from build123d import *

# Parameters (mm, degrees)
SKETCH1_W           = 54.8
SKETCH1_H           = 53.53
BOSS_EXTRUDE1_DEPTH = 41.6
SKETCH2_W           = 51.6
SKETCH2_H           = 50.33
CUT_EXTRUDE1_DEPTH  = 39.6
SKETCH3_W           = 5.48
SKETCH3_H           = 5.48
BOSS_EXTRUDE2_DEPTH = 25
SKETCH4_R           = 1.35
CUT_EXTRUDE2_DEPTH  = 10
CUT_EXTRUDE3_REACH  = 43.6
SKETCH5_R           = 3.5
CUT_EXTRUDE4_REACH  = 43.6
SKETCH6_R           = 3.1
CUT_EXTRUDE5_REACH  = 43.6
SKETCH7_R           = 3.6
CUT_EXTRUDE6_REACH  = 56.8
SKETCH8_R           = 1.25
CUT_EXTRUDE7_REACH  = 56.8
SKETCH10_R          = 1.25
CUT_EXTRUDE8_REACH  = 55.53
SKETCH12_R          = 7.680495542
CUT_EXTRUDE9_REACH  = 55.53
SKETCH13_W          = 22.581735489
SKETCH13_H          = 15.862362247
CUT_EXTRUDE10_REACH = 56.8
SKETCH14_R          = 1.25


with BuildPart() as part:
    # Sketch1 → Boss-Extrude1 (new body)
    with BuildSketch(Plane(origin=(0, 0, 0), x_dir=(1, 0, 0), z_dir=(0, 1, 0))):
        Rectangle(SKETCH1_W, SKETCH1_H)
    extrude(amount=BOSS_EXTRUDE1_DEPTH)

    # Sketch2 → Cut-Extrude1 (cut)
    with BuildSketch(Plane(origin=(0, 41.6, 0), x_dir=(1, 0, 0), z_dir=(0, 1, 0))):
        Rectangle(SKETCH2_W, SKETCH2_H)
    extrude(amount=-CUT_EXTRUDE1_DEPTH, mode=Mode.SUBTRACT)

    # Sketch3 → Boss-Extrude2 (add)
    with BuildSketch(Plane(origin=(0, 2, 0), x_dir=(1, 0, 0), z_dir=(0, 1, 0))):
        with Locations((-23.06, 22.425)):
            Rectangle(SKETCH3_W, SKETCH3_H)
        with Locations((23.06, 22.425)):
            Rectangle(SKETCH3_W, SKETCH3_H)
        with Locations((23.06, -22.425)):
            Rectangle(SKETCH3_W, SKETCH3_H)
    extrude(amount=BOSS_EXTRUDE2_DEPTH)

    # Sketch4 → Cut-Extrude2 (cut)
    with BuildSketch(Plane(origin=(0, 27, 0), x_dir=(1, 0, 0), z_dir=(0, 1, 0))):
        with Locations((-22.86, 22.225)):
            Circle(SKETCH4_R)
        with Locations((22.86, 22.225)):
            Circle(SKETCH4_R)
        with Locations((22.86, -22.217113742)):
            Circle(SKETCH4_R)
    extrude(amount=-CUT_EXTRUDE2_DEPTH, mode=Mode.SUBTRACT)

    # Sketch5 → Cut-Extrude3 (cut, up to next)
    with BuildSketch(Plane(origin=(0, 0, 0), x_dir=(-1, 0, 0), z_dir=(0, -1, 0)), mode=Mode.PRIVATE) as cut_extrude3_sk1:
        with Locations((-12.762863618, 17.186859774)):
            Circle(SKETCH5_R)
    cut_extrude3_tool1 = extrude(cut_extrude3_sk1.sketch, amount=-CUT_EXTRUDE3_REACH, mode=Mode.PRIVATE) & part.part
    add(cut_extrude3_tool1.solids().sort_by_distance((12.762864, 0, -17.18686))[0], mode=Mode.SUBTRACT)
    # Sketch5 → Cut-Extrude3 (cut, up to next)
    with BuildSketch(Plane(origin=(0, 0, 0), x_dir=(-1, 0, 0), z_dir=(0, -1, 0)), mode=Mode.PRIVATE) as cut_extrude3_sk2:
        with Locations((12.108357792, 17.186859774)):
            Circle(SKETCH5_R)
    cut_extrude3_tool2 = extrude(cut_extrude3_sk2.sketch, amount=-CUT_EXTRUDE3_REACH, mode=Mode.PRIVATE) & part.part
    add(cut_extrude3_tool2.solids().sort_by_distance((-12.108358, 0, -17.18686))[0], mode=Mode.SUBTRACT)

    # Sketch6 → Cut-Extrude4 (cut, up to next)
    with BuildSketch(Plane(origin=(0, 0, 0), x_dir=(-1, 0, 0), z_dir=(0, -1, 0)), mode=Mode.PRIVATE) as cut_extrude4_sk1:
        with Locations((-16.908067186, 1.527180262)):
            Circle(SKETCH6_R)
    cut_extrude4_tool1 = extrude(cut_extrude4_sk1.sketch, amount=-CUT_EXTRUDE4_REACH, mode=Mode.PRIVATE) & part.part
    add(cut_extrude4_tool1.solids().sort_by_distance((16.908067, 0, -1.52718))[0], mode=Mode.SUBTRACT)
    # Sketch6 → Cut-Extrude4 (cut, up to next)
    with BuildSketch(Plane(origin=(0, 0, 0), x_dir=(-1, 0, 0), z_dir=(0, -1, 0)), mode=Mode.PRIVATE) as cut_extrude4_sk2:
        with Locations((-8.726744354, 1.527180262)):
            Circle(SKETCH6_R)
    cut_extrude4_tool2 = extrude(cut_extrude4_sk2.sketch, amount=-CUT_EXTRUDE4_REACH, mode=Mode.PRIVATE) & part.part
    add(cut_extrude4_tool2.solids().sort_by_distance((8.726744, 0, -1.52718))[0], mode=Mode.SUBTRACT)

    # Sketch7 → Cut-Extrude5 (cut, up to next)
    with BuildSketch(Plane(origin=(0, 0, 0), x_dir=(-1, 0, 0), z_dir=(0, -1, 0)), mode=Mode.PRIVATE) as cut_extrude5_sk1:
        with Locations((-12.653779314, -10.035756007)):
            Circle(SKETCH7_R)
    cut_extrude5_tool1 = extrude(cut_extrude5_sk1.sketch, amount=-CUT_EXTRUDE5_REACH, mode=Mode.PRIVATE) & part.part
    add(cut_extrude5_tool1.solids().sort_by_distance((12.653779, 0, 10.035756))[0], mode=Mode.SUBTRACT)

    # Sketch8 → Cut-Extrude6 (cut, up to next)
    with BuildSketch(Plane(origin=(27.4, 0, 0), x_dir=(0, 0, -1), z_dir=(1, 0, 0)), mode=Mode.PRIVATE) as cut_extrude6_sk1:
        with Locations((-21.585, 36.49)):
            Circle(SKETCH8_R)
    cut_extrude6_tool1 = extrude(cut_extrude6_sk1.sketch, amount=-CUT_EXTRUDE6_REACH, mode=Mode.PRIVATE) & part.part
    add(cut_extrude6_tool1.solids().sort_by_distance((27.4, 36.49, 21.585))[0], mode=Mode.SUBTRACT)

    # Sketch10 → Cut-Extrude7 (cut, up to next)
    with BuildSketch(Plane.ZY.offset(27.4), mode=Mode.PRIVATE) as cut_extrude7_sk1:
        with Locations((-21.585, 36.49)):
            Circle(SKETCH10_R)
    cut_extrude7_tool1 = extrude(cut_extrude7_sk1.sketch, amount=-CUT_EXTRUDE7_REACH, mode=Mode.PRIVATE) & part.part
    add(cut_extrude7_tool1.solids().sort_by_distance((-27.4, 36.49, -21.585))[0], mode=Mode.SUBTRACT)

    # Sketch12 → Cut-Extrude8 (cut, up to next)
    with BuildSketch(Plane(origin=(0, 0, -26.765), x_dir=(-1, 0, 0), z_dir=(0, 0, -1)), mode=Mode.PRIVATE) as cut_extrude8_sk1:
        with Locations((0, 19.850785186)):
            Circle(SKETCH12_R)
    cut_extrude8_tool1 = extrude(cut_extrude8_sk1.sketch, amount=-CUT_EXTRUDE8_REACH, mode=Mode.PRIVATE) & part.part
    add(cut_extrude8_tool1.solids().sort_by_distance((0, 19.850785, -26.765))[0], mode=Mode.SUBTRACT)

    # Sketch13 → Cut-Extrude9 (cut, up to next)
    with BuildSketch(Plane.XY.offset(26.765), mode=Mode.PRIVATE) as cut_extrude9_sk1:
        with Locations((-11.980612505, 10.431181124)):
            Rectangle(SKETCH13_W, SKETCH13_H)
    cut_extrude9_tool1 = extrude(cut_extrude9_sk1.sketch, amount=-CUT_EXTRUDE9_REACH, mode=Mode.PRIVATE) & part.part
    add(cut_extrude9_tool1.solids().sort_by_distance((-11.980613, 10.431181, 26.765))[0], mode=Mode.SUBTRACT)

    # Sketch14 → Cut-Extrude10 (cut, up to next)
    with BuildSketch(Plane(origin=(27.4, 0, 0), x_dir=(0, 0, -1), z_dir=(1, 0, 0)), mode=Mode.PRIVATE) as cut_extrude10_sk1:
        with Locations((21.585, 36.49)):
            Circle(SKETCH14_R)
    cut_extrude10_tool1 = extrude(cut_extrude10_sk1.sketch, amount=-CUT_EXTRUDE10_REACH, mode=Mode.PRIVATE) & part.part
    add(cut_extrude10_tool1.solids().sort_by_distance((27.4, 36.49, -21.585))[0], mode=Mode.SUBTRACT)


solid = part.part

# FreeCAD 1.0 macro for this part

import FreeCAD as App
import Part
import Sketcher
from FreeCAD import Vector
Q = App.Units.Quantity

doc = App.newDocument("Part")
body = doc.addObject("PartDesign::Body", "Body")

# Sketch on XZ plane
sketch1 = doc.addObject("Sketcher::SketchObject", "Sketch")
body.addObject(sketch1)
sketch1.AttachmentSupport = (doc.XZ_Plane, [""])
sketch1.MapMode = "FlatFace"
sketch1.addGeometry(Part.LineSegment(Vector(-27, -27, 0), Vector(-27, 27, 0)), False)
sketch1.addGeometry(Part.LineSegment(Vector(-27, 27, 0), Vector(27, 27, 0)), False)
sketch1.addGeometry(Part.LineSegment(Vector(27, 27, 0), Vector(27, -27, 0)), False)
sketch1.addGeometry(Part.LineSegment(Vector(27, -27, 0), Vector(-27, -27, 0)), False)
sketch1.addConstraint(Sketcher.Constraint("Coincident", 0, 2, 1, 1))
sketch1.addConstraint(Sketcher.Constraint("Coincident", 1, 2, 2, 1))
sketch1.addConstraint(Sketcher.Constraint("Coincident", 2, 2, 3, 1))
sketch1.addConstraint(Sketcher.Constraint("Coincident", 3, 2, 0, 1))
sketch1.addConstraint(Sketcher.Constraint("Vertical", 0))
sketch1.addConstraint(Sketcher.Constraint("Horizontal", 1))
sketch1.addConstraint(Sketcher.Constraint("Vertical", 2))
sketch1.addConstraint(Sketcher.Constraint("Horizontal", 3))
sketch1.addConstraint(Sketcher.Constraint("Symmetric", 0, 2, 2, 2, -1, 1))
sketch1.addConstraint(Sketcher.Constraint("DistanceX", 1, 1, 1, 2, Q("54.8 mm")))
sketch1.addConstraint(Sketcher.Constraint("DistanceY", 0, 1, 0, 2, Q("53.53 mm")))
pad1 = doc.addObject("PartDesign::Pad", "Pad")
body.addObject(pad1)
pad1.Profile = sketch1
pad1.Length = 41.6
pad1.Reversed = True

# Sketch on XZ plane
sketch2 = doc.addObject("Sketcher::SketchObject", "Sketch001")
body.addObject(sketch2)
sketch2.AttachmentSupport = (doc.XZ_Plane, [""])
sketch2.MapMode = "FlatFace"
sketch2.AttachmentOffset = App.Placement(Vector(0, 0, -41.6), App.Rotation())
sketch2.addGeometry(Part.LineSegment(Vector(-26, -25, 0), Vector(-26, 25, 0)), False)
sketch2.addGeometry(Part.LineSegment(Vector(-26, 25, 0), Vector(26, 25, 0)), False)
sketch2.addGeometry(Part.LineSegment(Vector(26, 25, 0), Vector(26, -25, 0)), False)
sketch2.addGeometry(Part.LineSegment(Vector(26, -25, 0), Vector(-26, -25, 0)), False)
sketch2.addConstraint(Sketcher.Constraint("Coincident", 0, 2, 1, 1))
sketch2.addConstraint(Sketcher.Constraint("Coincident", 1, 2, 2, 1))
sketch2.addConstraint(Sketcher.Constraint("Coincident", 2, 2, 3, 1))
sketch2.addConstraint(Sketcher.Constraint("Coincident", 3, 2, 0, 1))
sketch2.addConstraint(Sketcher.Constraint("Vertical", 0))
sketch2.addConstraint(Sketcher.Constraint("Horizontal", 1))
sketch2.addConstraint(Sketcher.Constraint("Vertical", 2))
sketch2.addConstraint(Sketcher.Constraint("Horizontal", 3))
sketch2.addConstraint(Sketcher.Constraint("Symmetric", 0, 2, 2, 2, -1, 1))
sketch2.addConstraint(Sketcher.Constraint("DistanceX", 1, 1, 1, 2, Q("51.6 mm")))
sketch2.addConstraint(Sketcher.Constraint("DistanceY", 0, 1, 0, 2, Q("50.33 mm")))
pocket1 = doc.addObject("PartDesign::Pocket", "Pocket")
body.addObject(pocket1)
pocket1.Profile = sketch2
pocket1.Length = 39.6
pocket1.Reversed = True

# Sketch on XZ plane
sketch3 = doc.addObject("Sketcher::SketchObject", "Sketch002")
body.addObject(sketch3)
sketch3.AttachmentSupport = (doc.XZ_Plane, [""])
sketch3.MapMode = "FlatFace"
sketch3.AttachmentOffset = App.Placement(Vector(0, 0, -2), App.Rotation())
sketch3.addGeometry(Part.LineSegment(Vector(-26, -25, 0), Vector(-26, -20, 0)), False)
sketch3.addGeometry(Part.LineSegment(Vector(-26, -20, 0), Vector(-20, -20, 0)), False)
sketch3.addGeometry(Part.LineSegment(Vector(-20, -20, 0), Vector(-20, -25, 0)), False)
sketch3.addGeometry(Part.LineSegment(Vector(-20, -25, 0), Vector(-26, -25, 0)), False)
sketch3.addGeometry(Part.LineSegment(Vector(20, -25, 0), Vector(20, -20, 0)), False)
sketch3.addGeometry(Part.LineSegment(Vector(20, -20, 0), Vector(26, -20, 0)), False)
sketch3.addGeometry(Part.LineSegment(Vector(26, -20, 0), Vector(26, -25, 0)), False)
sketch3.addGeometry(Part.LineSegment(Vector(26, -25, 0), Vector(20, -25, 0)), False)
sketch3.addGeometry(Part.LineSegment(Vector(20, 20, 0), Vector(20, 25, 0)), False)
sketch3.addGeometry(Part.LineSegment(Vector(20, 25, 0), Vector(26, 25, 0)), False)
sketch3.addGeometry(Part.LineSegment(Vector(26, 25, 0), Vector(26, 20, 0)), False)
sketch3.addGeometry(Part.LineSegment(Vector(26, 20, 0), Vector(20, 20, 0)), False)
sketch3.addConstraint(Sketcher.Constraint("Coincident", 0, 2, 1, 1))
sketch3.addConstraint(Sketcher.Constraint("Coincident", 1, 2, 2, 1))
sketch3.addConstraint(Sketcher.Constraint("Coincident", 2, 2, 3, 1))
sketch3.addConstraint(Sketcher.Constraint("Coincident", 3, 2, 0, 1))
sketch3.addConstraint(Sketcher.Constraint("Coincident", 4, 2, 5, 1))
sketch3.addConstraint(Sketcher.Constraint("Coincident", 5, 2, 6, 1))
sketch3.addConstraint(Sketcher.Constraint("Coincident", 6, 2, 7, 1))
sketch3.addConstraint(Sketcher.Constraint("Coincident", 7, 2, 4, 1))
sketch3.addConstraint(Sketcher.Constraint("Coincident", 8, 2, 9, 1))
sketch3.addConstraint(Sketcher.Constraint("Coincident", 9, 2, 10, 1))
sketch3.addConstraint(Sketcher.Constraint("Coincident", 10, 2, 11, 1))
sketch3.addConstraint(Sketcher.Constraint("Coincident", 11, 2, 8, 1))
sketch3.addConstraint(Sketcher.Constraint("Vertical", 0))
sketch3.addConstraint(Sketcher.Constraint("Horizontal", 1))
sketch3.addConstraint(Sketcher.Constraint("Vertical", 2))
sketch3.addConstraint(Sketcher.Constraint("Horizontal", 3))
sketch3.addConstraint(Sketcher.Constraint("Vertical", 4))
sketch3.addConstraint(Sketcher.Constraint("Horizontal", 5))
sketch3.addConstraint(Sketcher.Constraint("Vertical", 6))
sketch3.addConstraint(Sketcher.Constraint("Horizontal", 7))
sketch3.addConstraint(Sketcher.Constraint("Vertical", 8))
sketch3.addConstraint(Sketcher.Constraint("Horizontal", 9))
sketch3.addConstraint(Sketcher.Constraint("Vertical", 10))
sketch3.addConstraint(Sketcher.Constraint("Horizontal", 11))
sketch3.addConstraint(Sketcher.Constraint("Symmetric", 2, 2, 8, 2, -1, 1))
sketch3.addConstraint(Sketcher.Constraint("Symmetric", 0, 2, 10, 2, -1, 1))
sketch3.addConstraint(Sketcher.Constraint("Symmetric", 1, 2, 4, 2, -2))
sketch3.addConstraint(Sketcher.Constraint("Symmetric", 3, 2, 6, 2, -2))
sketch3.addConstraint(Sketcher.Constraint("Equal", 11, 0))
sketch3.addConstraint(Sketcher.Constraint("DistanceX", 1, 1, 1, 2, Q("5.48 mm")))
sketch3.addConstraint(Sketcher.Constraint("DistanceX", 0, 2, -1, 1, Q("25.8 mm")))
sketch3.addConstraint(Sketcher.Constraint("DistanceY", 4, 2, 8, 2, Q("44.85 mm")))
pad2 = doc.addObject("PartDesign::Pad", "Pad001")
body.addObject(pad2)
pad2.Profile = sketch3
pad2.Length = 25
pad2.Reversed = True

# Sketch on XZ plane
sketch4 = doc.addObject("Sketcher::SketchObject", "Sketch003")
body.addObject(sketch4)
sketch4.AttachmentSupport = (doc.XZ_Plane, [""])
sketch4.MapMode = "FlatFace"
sketch4.AttachmentOffset = App.Placement(Vector(0, 0, -27), App.Rotation())
sketch4.addGeometry(Part.Circle(Vector(-22.9, -22.2, 0), Vector(0, 0, 1), 1.4), False)
sketch4.addGeometry(Part.Circle(Vector(22.9, -22.2, 0), Vector(0, 0, 1), 1.4), False)
sketch4.addGeometry(Part.Circle(Vector(22.9, 22.2, 0), Vector(0, 0, 1), 1.4), False)
sketch4.addConstraint(Sketcher.Constraint("Equal", 0, 1))
sketch4.addConstraint(Sketcher.Constraint("Equal", 1, 2))
sketch4.addConstraint(Sketcher.Constraint("Symmetric", 0, 3, 1, 3, -2))
sketch4.addConstraint(Sketcher.Constraint("Vertical", 1, 3, 2, 3))
sketch4.addConstraint(Sketcher.Constraint("Diameter", 0, Q("2.7 mm")))
sketch4.addConstraint(Sketcher.Constraint("DistanceX", 0, 3, -1, 1, Q("22.86 mm")))
sketch4.addConstraint(Sketcher.Constraint("DistanceY", 0, 3, -1, 1, Q("22.225 mm")))
sketch4.addConstraint(Sketcher.Constraint("DistanceY", -1, 1, 2, 3, Q("22.217114 mm")))
pocket2 = doc.addObject("PartDesign::Pocket", "Pocket001")
body.addObject(pocket2)
pocket2.Profile = sketch4
pocket2.Length = 10
pocket2.Reversed = True

# Sketch on XZ plane
sketch5 = doc.addObject("Sketcher::SketchObject", "Sketch004")
body.addObject(sketch5)
sketch5.AttachmentSupport = (doc.XZ_Plane, [""])
sketch5.MapMode = "FlatFace"
sketch5.addGeometry(Part.Circle(Vector(12.8, -17.2, 0), Vector(0, 0, 1), 3.5), False)
sketch5.addConstraint(Sketcher.Constraint("Diameter", 0, Q("7 mm")))
sketch5.addConstraint(Sketcher.Constraint("DistanceY", 0, 3, -1, 1, Q("17.18686 mm")))
sketch5.addConstraint(Sketcher.Constraint("DistanceX", -1, 1, 0, 3, Q("12.762864 mm")))
pocket3 = doc.addObject("PartDesign::Pocket", "Pocket002")
body.addObject(pocket3)
pocket3.Profile = sketch5
pocket3.Type = "UpToFirst"

# Sketch on XZ plane
sketch6 = doc.addObject("Sketcher::SketchObject", "Sketch005")
body.addObject(sketch6)
sketch6.AttachmentSupport = (doc.XZ_Plane, [""])
sketch6.MapMode = "FlatFace"
sketch6.addGeometry(Part.Circle(Vector(-12.1, -17.2, 0), Vector(0, 0, 1), 3.5), False)
sketch6.addConstraint(Sketcher.Constraint("Diameter", 0, Q("7 mm")))
sketch6.addConstraint(Sketcher.Constraint("DistanceY", 0, 3, -1, 1, Q("17.18686 mm")))
sketch6.addConstraint(Sketcher.Constraint("DistanceX", 0, 3, -1, 1, Q("12.108358 mm")))
pocket4 = doc.addObject("PartDesign::Pocket", "Pocket003")
body.addObject(pocket4)
pocket4.Profile = sketch6
pocket4.Type = "UpToFirst"

# Sketch on XZ plane
sketch7 = doc.addObject("Sketcher::SketchObject", "Sketch006")
body.addObject(sketch7)
sketch7.AttachmentSupport = (doc.XZ_Plane, [""])
sketch7.MapMode = "FlatFace"
sketch7.addGeometry(Part.Circle(Vector(16.9, -1.5, 0), Vector(0, 0, 1), 3.1), False)
sketch7.addConstraint(Sketcher.Constraint("Diameter", 0, Q("6.2 mm")))
sketch7.addConstraint(Sketcher.Constraint("DistanceY", 0, 3, -1, 1, Q("1.52718 mm")))
sketch7.addConstraint(Sketcher.Constraint("DistanceX", -1, 1, 0, 3, Q("16.908067 mm")))
pocket5 = doc.addObject("PartDesign::Pocket", "Pocket004")
body.addObject(pocket5)
pocket5.Profile = sketch7
pocket5.Type = "UpToFirst"

# Sketch on XZ plane
sketch8 = doc.addObject("Sketcher::SketchObject", "Sketch007")
body.addObject(sketch8)
sketch8.AttachmentSupport = (doc.XZ_Plane, [""])
sketch8.MapMode = "FlatFace"
sketch8.addGeometry(Part.Circle(Vector(8.7, -1.5, 0), Vector(0, 0, 1), 3.1), False)
sketch8.addConstraint(Sketcher.Constraint("Diameter", 0, Q("6.2 mm")))
sketch8.addConstraint(Sketcher.Constraint("DistanceY", 0, 3, -1, 1, Q("1.52718 mm")))
sketch8.addConstraint(Sketcher.Constraint("DistanceX", -1, 1, 0, 3, Q("8.726744 mm")))
pocket6 = doc.addObject("PartDesign::Pocket", "Pocket005")
body.addObject(pocket6)
pocket6.Profile = sketch8
pocket6.Type = "UpToFirst"

# Sketch on XZ plane
sketch9 = doc.addObject("Sketcher::SketchObject", "Sketch008")
body.addObject(sketch9)
sketch9.AttachmentSupport = (doc.XZ_Plane, [""])
sketch9.MapMode = "FlatFace"
sketch9.addGeometry(Part.Circle(Vector(12.7, 10, 0), Vector(0, 0, 1), 3.6), False)
sketch9.addConstraint(Sketcher.Constraint("Diameter", 0, Q("7.2 mm")))
sketch9.addConstraint(Sketcher.Constraint("DistanceX", -1, 1, 0, 3, Q("12.653779 mm")))
sketch9.addConstraint(Sketcher.Constraint("DistanceY", -1, 1, 0, 3, Q("10.035756 mm")))
pocket7 = doc.addObject("PartDesign::Pocket", "Pocket006")
body.addObject(pocket7)
pocket7.Profile = sketch9
pocket7.Type = "UpToFirst"

# Sketch on YZ plane
sketch10 = doc.addObject("Sketcher::SketchObject", "Sketch009")
body.addObject(sketch10)
sketch10.AttachmentSupport = (doc.YZ_Plane, [""])
sketch10.MapMode = "FlatFace"
sketch10.AttachmentOffset = App.Placement(Vector(0, 0, 27.4), App.Rotation())
sketch10.addGeometry(Part.Circle(Vector(36.5, 21.6, 0), Vector(0, 0, 1), 1.2), False)
sketch10.addConstraint(Sketcher.Constraint("Diameter", 0, Q("2.5 mm")))
sketch10.addConstraint(Sketcher.Constraint("DistanceX", -1, 1, 0, 3, Q("36.49 mm")))
sketch10.addConstraint(Sketcher.Constraint("DistanceY", -1, 1, 0, 3, Q("21.585 mm")))
pocket8 = doc.addObject("PartDesign::Pocket", "Pocket007")
body.addObject(pocket8)
pocket8.Profile = sketch10
pocket8.Type = "UpToFirst"

# Sketch on YZ plane
sketch11 = doc.addObject("Sketcher::SketchObject", "Sketch010")
body.addObject(sketch11)
sketch11.AttachmentSupport = (doc.YZ_Plane, [""])
sketch11.MapMode = "FlatFace"
sketch11.AttachmentOffset = App.Placement(Vector(0, 0, -27.4), App.Rotation())
sketch11.addGeometry(Part.Circle(Vector(36.5, -21.6, 0), Vector(0, 0, 1), 1.2), False)
sketch11.addConstraint(Sketcher.Constraint("Diameter", 0, Q("2.5 mm")))
sketch11.addConstraint(Sketcher.Constraint("DistanceX", -1, 1, 0, 3, Q("36.49 mm")))
sketch11.addConstraint(Sketcher.Constraint("DistanceY", 0, 3, -1, 1, Q("21.585 mm")))
pocket9 = doc.addObject("PartDesign::Pocket", "Pocket008")
body.addObject(pocket9)
pocket9.Profile = sketch11
pocket9.Type = "UpToFirst"
pocket9.Reversed = True

# Sketch on XY plane
sketch12 = doc.addObject("Sketcher::SketchObject", "Sketch011")
body.addObject(sketch12)
sketch12.AttachmentSupport = (doc.XY_Plane, [""])
sketch12.MapMode = "FlatFace"
sketch12.AttachmentOffset = App.Placement(Vector(0, 0, -26.765), App.Rotation())
sketch12.addGeometry(Part.Circle(Vector(0, 20, 0), Vector(0, 0, 1), 8), False)
sketch12.addConstraint(Sketcher.Constraint("PointOnObject", 0, 3, -2))
sketch12.addConstraint(Sketcher.Constraint("Diameter", 0, Q("15.360991 mm")))
sketch12.addConstraint(Sketcher.Constraint("DistanceY", -1, 1, 0, 3, Q("19.850785 mm")))
pocket10 = doc.addObject("PartDesign::Pocket", "Pocket009")
body.addObject(pocket10)
pocket10.Profile = sketch12
pocket10.Type = "UpToFirst"
pocket10.Reversed = True

# Sketch on XY plane
sketch13 = doc.addObject("Sketcher::SketchObject", "Sketch012")
body.addObject(sketch13)
sketch13.AttachmentSupport = (doc.XY_Plane, [""])
sketch13.MapMode = "FlatFace"
sketch13.AttachmentOffset = App.Placement(Vector(0, 0, 26.765), App.Rotation())
sketch13.addGeometry(Part.LineSegment(Vector(-23, 18, 0), Vector(-23, 3, 0)), False)
sketch13.addGeometry(Part.LineSegment(Vector(-23, 3, 0), Vector(-1, 3, 0)), False)
sketch13.addGeometry(Part.LineSegment(Vector(-1, 3, 0), Vector(-1, 18, 0)), False)
sketch13.addGeometry(Part.LineSegment(Vector(-1, 18, 0), Vector(-23, 18, 0)), False)
sketch13.addConstraint(Sketcher.Constraint("Coincident", 0, 2, 1, 1))
sketch13.addConstraint(Sketcher.Constraint("Coincident", 1, 2, 2, 1))
sketch13.addConstraint(Sketcher.Constraint("Coincident", 2, 2, 3, 1))
sketch13.addConstraint(Sketcher.Constraint("Coincident", 3, 2, 0, 1))
sketch13.addConstraint(Sketcher.Constraint("Vertical", 0))
sketch13.addConstraint(Sketcher.Constraint("Horizontal", 1))
sketch13.addConstraint(Sketcher.Constraint("Vertical", 2))
sketch13.addConstraint(Sketcher.Constraint("Horizontal", 3))
sketch13.addConstraint(Sketcher.Constraint("DistanceY", -1, 1, 0, 2, Q("2.5 mm")))
sketch13.addConstraint(Sketcher.Constraint("DistanceX", 1, 1, 1, 2, Q("22.581735 mm")))
sketch13.addConstraint(Sketcher.Constraint("DistanceY", 0, 2, 0, 1, Q("15.862362 mm")))
sketch13.addConstraint(Sketcher.Constraint("DistanceX", 0, 2, -1, 1, Q("23.27148 mm")))
pocket11 = doc.addObject("PartDesign::Pocket", "Pocket010")
body.addObject(pocket11)
pocket11.Profile = sketch13
pocket11.Type = "UpToFirst"

# Sketch on YZ plane
sketch14 = doc.addObject("Sketcher::SketchObject", "Sketch013")
body.addObject(sketch14)
sketch14.AttachmentSupport = (doc.YZ_Plane, [""])
sketch14.MapMode = "FlatFace"
sketch14.AttachmentOffset = App.Placement(Vector(0, 0, 27.4), App.Rotation())
sketch14.addGeometry(Part.Circle(Vector(36.5, -21.6, 0), Vector(0, 0, 1), 1.2), False)
sketch14.addConstraint(Sketcher.Constraint("Diameter", 0, Q("2.5 mm")))
sketch14.addConstraint(Sketcher.Constraint("DistanceX", -1, 1, 0, 3, Q("36.49 mm")))
sketch14.addConstraint(Sketcher.Constraint("DistanceY", 0, 3, -1, 1, Q("21.585 mm")))
pocket12 = doc.addObject("PartDesign::Pocket", "Pocket011")
body.addObject(pocket12)
pocket12.Profile = sketch14
pocket12.Type = "UpToFirst"

doc.recompute()
